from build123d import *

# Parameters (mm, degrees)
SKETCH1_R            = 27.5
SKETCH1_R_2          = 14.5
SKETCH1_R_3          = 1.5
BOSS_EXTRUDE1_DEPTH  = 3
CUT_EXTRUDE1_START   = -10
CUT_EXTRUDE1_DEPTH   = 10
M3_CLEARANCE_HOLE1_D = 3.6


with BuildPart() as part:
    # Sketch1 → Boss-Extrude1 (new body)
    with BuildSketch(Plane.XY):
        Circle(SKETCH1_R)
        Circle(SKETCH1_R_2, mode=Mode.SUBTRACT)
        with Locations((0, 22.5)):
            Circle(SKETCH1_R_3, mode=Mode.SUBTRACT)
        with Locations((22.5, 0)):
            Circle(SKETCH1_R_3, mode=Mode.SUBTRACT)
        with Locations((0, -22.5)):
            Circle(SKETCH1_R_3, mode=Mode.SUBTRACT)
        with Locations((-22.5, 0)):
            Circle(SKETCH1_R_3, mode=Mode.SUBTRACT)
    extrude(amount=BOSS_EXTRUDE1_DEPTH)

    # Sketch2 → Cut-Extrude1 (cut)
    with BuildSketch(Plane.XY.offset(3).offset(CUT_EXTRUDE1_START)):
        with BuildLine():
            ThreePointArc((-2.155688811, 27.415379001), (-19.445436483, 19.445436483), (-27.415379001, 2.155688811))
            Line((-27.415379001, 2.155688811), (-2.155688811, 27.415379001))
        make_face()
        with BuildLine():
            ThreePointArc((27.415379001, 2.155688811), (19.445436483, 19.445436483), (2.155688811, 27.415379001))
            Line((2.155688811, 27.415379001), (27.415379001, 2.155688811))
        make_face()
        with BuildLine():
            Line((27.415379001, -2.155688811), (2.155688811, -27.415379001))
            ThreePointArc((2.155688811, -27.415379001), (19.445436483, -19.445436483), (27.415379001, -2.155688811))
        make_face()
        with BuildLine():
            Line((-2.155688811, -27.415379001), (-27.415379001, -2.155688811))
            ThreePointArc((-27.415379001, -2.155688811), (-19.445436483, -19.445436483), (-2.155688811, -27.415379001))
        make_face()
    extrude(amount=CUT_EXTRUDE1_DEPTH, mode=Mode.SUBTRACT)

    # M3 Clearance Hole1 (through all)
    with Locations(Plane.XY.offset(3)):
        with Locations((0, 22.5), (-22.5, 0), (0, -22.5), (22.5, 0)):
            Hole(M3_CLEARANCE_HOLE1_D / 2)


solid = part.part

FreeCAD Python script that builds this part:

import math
import FreeCAD as App
import Part
import Sketcher
Q = App.Units.Quantity

doc = App.newDocument("Part")
body = doc.addObject("PartDesign::Body", "Body")

# Sketch on XY plane
sketch1 = body.newObject("Sketcher::SketchObject", "Sketch")
sketch1.AttachmentSupport = (doc.getObject("XY_Plane"), [""])
sketch1.MapMode = "FlatFace"
sketch1.addGeometry(Part.Circle(App.Vector(0, 0, 0), App.Vector(0, 0, 1), 27.5), False)
sketch1.addGeometry(Part.Circle(App.Vector(0, -22.5, 0), App.Vector(0, 0, 1), 1.5), False)
sketch1.addGeometry(Part.Circle(App.Vector(-22.5, 0, 0), App.Vector(0, 0, 1), 1.5), False)
sketch1.addGeometry(Part.Circle(App.Vector(0, 0, 0), App.Vector(0, 0, 1), 14.5), False)
sketch1.addGeometry(Part.Circle(App.Vector(22.5, 0, 0), App.Vector(0, 0, 1), 1.5), False)
sketch1.addGeometry(Part.Circle(App.Vector(0, 22.5, 0), App.Vector(0, 0, 1), 1.5), False)
sketch1.addConstraint(Sketcher.Constraint("Coincident", 0, 3, -1, 1))
sketch1.addConstraint(Sketcher.Constraint("Coincident", 3, 3, -1, 1))
sketch1.addConstraint(Sketcher.Constraint("Equal", 1, 2))
sketch1.addConstraint(Sketcher.Constraint("Equal", 2, 4))
sketch1.addConstraint(Sketcher.Constraint("Equal", 4, 5))
sketch1.addConstraint(Sketcher.Constraint("Symmetric", 2, 3, 4, 3, -1, 1))
sketch1.addConstraint(Sketcher.Constraint("Symmetric", 1, 3, 5, 3, -1, 1))
sketch1.addConstraint(Sketcher.Constraint("PointOnObject", 1, 3, -2))
sketch1.addConstraint(Sketcher.Constraint("PointOnObject", 2, 3, -1))
sketch1.addConstraint(Sketcher.Constraint("Diameter", 0, Q("55 mm")))
sketch1.addConstraint(Sketcher.Constraint("Diameter", 1, Q("3 mm")))
sketch1.addConstraint(Sketcher.Constraint("Diameter", 3, Q("29 mm")))
sketch1.addConstraint(Sketcher.Constraint("DistanceX", 2, 3, 4, 3, Q("45 mm")))
sketch1.addConstraint(Sketcher.Constraint("DistanceY", 1, 3, 5, 3, Q("45 mm")))
pad1 = body.newObject("PartDesign::Pad", "Pad")
pad1.Profile = sketch1
pad1.Length = 3

# Sketch on XY plane
sketch2 = body.newObject("Sketcher::SketchObject", "Sketch001")
sketch2.AttachmentSupport = (doc.getObject("XY_Plane"), [""])
sketch2.MapMode = "FlatFace"
sketch2.AttachmentOffset = App.Placement(App.Vector(0, 0, -7), App.Rotation())
sketch2.addGeometry(Part.ArcOfCircle(Part.Circle(App.Vector(0, 0, 0), App.Vector(0, 0, 1), 28), math.radians(94), math.radians(176)), False)
sketch2.addGeometry(Part.LineSegment(App.Vector(-27, 2, 0), App.Vector(-2, 27, 0)), False)
sketch2.addGeometry(Part.ArcOfCircle(Part.Circle(App.Vector(0, 0, 0), App.Vector(0, 0, 1), 28), math.radians(4), math.radians(86)), False)
sketch2.addGeometry(Part.LineSegment(App.Vector(2, 27, 0), App.Vector(27, 2, 0)), False)
sketch2.addGeometry(Part.LineSegment(App.Vector(27, -2, 0), App.Vector(2, -27, 0)), False)
sketch2.addGeometry(Part.ArcOfCircle(Part.Circle(App.Vector(0, 0, 0), App.Vector(0, 0, 1), 28), math.radians(-86), math.radians(-4)), False)
sketch2.addGeometry(Part.LineSegment(App.Vector(-2, -27, 0), App.Vector(-27, -2, 0)), False)
sketch2.addGeometry(Part.ArcOfCircle(Part.Circle(App.Vector(0, 0, 0), App.Vector(0, 0, 1), 28), math.radians(-176), math.radians(-94)), False)
sketch2.addConstraint(Sketcher.Constraint("Coincident", 0, 1, 1, 2))
sketch2.addConstraint(Sketcher.Constraint("Coincident", 1, 1, 0, 2))
sketch2.addConstraint(Sketcher.Constraint("Coincident", 2, 1, 3, 2))
sketch2.addConstraint(Sketcher.Constraint("Coincident", 3, 1, 2, 2))
sketch2.addConstraint(Sketcher.Constraint("Coincident", 4, 1, 5, 2))
sketch2.addConstraint(Sketcher.Constraint("Coincident", 5, 1, 4, 2))
sketch2.addConstraint(Sketcher.Constraint("Coincident", 6, 1, 7, 2))
sketch2.addConstraint(Sketcher.Constraint("Coincident", 7, 1, 6, 2))
sketch2.addConstraint(Sketcher.Constraint("Coincident", 0, 3, -1, 1))
sketch2.addConstraint(Sketcher.Constraint("Coincident", 2, 3, -1, 1))
sketch2.addConstraint(Sketcher.Constraint("Coincident", 5, 3, -1, 1))
sketch2.addConstraint(Sketcher.Constraint("Coincident", 7, 3, -1, 1))
sketch2.addConstraint(Sketcher.Constraint("Equal", 0, 2))
sketch2.addConstraint(Sketcher.Constraint("Equal", 2, 5))
sketch2.addConstraint(Sketcher.Constraint("Equal", 5, 7))
sketch2.addConstraint(Sketcher.Constraint("Perpendicular", 1, 3))
sketch2.addConstraint(Sketcher.Constraint("Perpendicular", 3, 4))
sketch2.addConstraint(Sketcher.Constraint("Perpendicular", 4, 6))
sketch2.addConstraint(Sketcher.Constraint("Horizontal", 1, 1, 2, 1))
sketch2.addConstraint(Sketcher.Constraint("Horizontal", 0, 1, 3, 1))
sketch2.addConstraint(Sketcher.Constraint("Horizontal", 5, 1, 6, 1))
sketch2.addConstraint(Sketcher.Constraint("Vertical", 2, 1, 4, 1))
sketch2.addConstraint(Sketcher.Constraint("Radius", 0, Q("27.5 mm")))
sketch2.addConstraint(Sketcher.Constraint("DistanceX", 0, 1, -1, 1, Q("2.155689 mm")))
pocket1 = body.newObject("PartDesign::Pocket", "Pocket")
pocket1.Profile = sketch2
pocket1.Length = 10
pocket1.Reversed = True

# Sketch on XY plane
sketch3 = body.newObject("Sketcher::SketchObject", "Sketch002")
sketch3.AttachmentSupport = (doc.getObject("XY_Plane"), [""])
sketch3.MapMode = "FlatFace"
sketch3.AttachmentOffset = App.Placement(App.Vector(0, 0, 3), App.Rotation())
sketch3.addGeometry(Part.Circle(App.Vector(0, 22.5, 0), App.Vector(0, 0, 1), 1.8), False)
sketch3.addGeometry(Part.Circle(App.Vector(-22.5, 0, 0), App.Vector(0, 0, 1), 1.8), False)
sketch3.addGeometry(Part.Circle(App.Vector(0, -22.5, 0), App.Vector(0, 0, 1), 1.8), False)
sketch3.addGeometry(Part.Circle(App.Vector(22.5, 0, 0), App.Vector(0, 0, 1), 1.8), False)
sketch3.addConstraint(Sketcher.Constraint("Equal", 0, 1))
sketch3.addConstraint(Sketcher.Constraint("Equal", 1, 2))
sketch3.addConstraint(Sketcher.Constraint("Equal", 2, 3))
sketch3.addConstraint(Sketcher.Constraint("Symmetric", 0, 3, 2, 3, -1, 1))
sketch3.addConstraint(Sketcher.Constraint("Symmetric", 1, 3, 3, 3, -1, 1))
sketch3.addConstraint(Sketcher.Constraint("PointOnObject", 0, 3, -2))
sketch3.addConstraint(Sketcher.Constraint("PointOnObject", 1, 3, -1))
sketch3.addConstraint(Sketcher.Constraint("Diameter", 0, Q("3.6 mm")))
sketch3.addConstraint(Sketcher.Constraint("DistanceY", 2, 3, 0, 3, Q("45 mm")))
sketch3.addConstraint(Sketcher.Constraint("DistanceX", 1, 3, 3, 3, Q("45 mm")))
doc.recompute()
hole = body.newObject("PartDesign::Hole", "Hole")
hole.Profile = sketch3
hole.ThreadType = "None"
hole.Diameter = 3.6
hole.DepthType = "ThroughAll"

doc.recompute()
